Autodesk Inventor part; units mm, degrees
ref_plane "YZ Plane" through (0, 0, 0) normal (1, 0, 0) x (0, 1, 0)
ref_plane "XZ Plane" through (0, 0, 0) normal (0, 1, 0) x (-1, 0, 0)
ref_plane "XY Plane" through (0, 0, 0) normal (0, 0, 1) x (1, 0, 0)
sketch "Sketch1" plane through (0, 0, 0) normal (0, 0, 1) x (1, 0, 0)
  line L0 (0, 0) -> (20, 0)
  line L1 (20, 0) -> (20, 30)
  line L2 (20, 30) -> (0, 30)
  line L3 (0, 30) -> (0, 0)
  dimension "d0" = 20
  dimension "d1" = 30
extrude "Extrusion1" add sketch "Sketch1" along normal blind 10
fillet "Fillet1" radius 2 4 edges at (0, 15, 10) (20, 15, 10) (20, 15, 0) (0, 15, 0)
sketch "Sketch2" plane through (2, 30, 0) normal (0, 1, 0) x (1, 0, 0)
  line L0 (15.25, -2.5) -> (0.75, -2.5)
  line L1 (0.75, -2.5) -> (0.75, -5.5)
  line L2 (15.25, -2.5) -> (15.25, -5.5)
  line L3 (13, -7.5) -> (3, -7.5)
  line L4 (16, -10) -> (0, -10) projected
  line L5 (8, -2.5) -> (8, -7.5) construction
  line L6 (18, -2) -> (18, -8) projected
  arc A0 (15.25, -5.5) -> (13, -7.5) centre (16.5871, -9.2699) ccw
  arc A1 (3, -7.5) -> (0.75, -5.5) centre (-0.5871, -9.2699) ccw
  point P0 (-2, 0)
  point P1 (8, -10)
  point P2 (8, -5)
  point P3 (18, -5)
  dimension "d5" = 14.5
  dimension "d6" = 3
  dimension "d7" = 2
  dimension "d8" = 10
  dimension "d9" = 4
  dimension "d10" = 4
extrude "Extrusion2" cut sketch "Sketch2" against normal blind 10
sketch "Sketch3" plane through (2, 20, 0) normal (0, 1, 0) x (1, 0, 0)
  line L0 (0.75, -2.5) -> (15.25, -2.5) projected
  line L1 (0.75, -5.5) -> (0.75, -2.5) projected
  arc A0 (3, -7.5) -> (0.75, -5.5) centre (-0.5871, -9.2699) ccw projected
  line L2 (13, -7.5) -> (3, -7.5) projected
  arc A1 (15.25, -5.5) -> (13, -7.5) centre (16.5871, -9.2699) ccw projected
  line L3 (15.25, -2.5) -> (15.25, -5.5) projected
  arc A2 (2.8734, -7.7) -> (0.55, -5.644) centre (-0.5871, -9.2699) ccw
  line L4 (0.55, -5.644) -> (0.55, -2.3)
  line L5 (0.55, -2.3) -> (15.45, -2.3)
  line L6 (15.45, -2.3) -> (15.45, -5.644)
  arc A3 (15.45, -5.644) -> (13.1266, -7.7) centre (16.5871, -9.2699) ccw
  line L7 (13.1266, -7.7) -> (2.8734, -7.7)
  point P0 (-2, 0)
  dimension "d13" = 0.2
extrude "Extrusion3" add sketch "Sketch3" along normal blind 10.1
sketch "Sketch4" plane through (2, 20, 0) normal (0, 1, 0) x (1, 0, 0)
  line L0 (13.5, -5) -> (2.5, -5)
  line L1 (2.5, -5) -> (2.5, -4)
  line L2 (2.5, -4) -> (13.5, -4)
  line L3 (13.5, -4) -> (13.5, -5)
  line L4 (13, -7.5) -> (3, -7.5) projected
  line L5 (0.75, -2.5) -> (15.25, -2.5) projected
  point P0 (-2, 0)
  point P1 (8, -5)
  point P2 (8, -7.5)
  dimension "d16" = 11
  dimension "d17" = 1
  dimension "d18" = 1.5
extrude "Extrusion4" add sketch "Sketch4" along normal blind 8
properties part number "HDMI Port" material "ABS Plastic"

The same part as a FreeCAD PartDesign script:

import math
import FreeCAD as App
import Part
import Sketcher


def edges_at(feature, points):
    """Names of the edges that pass closest to the given points."""
    edges = feature.Shape.Edges
    near = lambda p: min(range(len(edges)), key=lambda i: edges[i].distToShape(Part.Vertex(*p))[0])
    return sorted({f"Edge{near(p) + 1}" for p in points})


def add_polygon(sketch, points):
    """Adds a closed chain of lines whose ends are joined by coincident constraints."""
    first, n = sketch.GeometryCount, len(points)
    for a, b in zip(points, points[1:] + points[:1]):
        sketch.addGeometry(Part.LineSegment(App.Vector(*a, 0), App.Vector(*b, 0)), False)
    for i in range(n):
        sketch.addConstraint(Sketcher.Constraint("Coincident", first + i, 2, first + (i + 1) % n, 1))

doc = App.newDocument("Part")
body = doc.addObject("PartDesign::Body", "Body")

# Sketch on XY plane
sketch1 = body.newObject("Sketcher::SketchObject", "Sketch")
sketch1.AttachmentSupport = (doc.getObject("XY_Plane"), [""])
sketch1.MapMode = "FlatFace"
add_polygon(sketch1, [(0, 30), (0, 0), (20, 0), (20, 30)])  # lines 0-3
sketch1.addConstraint([
    Sketcher.Constraint("Vertical", 0),
    Sketcher.Constraint("Horizontal", 1),
    Sketcher.Constraint("Vertical", 2),
    Sketcher.Constraint("Horizontal", 3),
    Sketcher.Constraint("Coincident", 0, 2, -1, 1),
    Sketcher.Constraint("DistanceX", 1, 1, 1, 2, 20.0),
    Sketcher.Constraint("DistanceY", 0, 2, 0, 1, 30.0),
])
pad1 = body.newObject("PartDesign::Pad", "Pad")
pad1.Profile = sketch1
pad1.Length = 10
doc.recompute()

fillet = body.newObject("PartDesign::Fillet", "Fillet")
fillet.Base = (pad1, edges_at(pad1, [
    (0, 15, 10),
    (20, 15, 10),
    (20, 15, 0),
    (0, 15, 0),
]))
fillet.Radius = 2

# Sketch on XZ plane
sketch2 = body.newObject("Sketcher::SketchObject", "Sketch001")
sketch2.AttachmentSupport = (doc.getObject("XZ_Plane"), [""])
sketch2.MapMode = "FlatFace"
sketch2.AttachmentOffset = App.Placement(App.Vector(0, 0, -30), App.Rotation())
sketch2.addGeometry([
    Part.LineSegment(App.Vector(17.2, 5.5, 0), App.Vector(17.2, 2.5, 0)),  # 0
    Part.LineSegment(App.Vector(17.2, 2.5, 0), App.Vector(2.8, 2.5, 0)),  # 1
    Part.LineSegment(App.Vector(2.8, 2.5, 0), App.Vector(2.8, 5.5, 0)),  # 2
    Part.ArcOfCircle(Part.Circle(App.Vector(1.4, 9.3, 0), App.Vector(0, 0, 1), 4), math.radians(-70), math.radians(-26)),  # 3
    Part.LineSegment(App.Vector(5, 7.5, 0), App.Vector(15, 7.5, 0)),  # 4
    Part.ArcOfCircle(Part.Circle(App.Vector(18.6, 9.3, 0), App.Vector(0, 0, 1), 4), math.radians(-154), math.radians(-110)),  # 5
], False)
sketch2.addConstraint([
    Sketcher.Constraint("Coincident", 0, 2, 1, 1),
    Sketcher.Constraint("Coincident", 1, 2, 2, 1),
    Sketcher.Constraint("Coincident", 2, 2, 3, 1),
    Sketcher.Constraint("Coincident", 3, 2, 4, 1),
    Sketcher.Constraint("Coincident", 4, 2, 5, 1),
    Sketcher.Constraint("Coincident", 5, 2, 0, 1),
    Sketcher.Constraint("Vertical", 0),
    Sketcher.Constraint("Horizontal", 1),
    Sketcher.Constraint("Vertical", 2),
    Sketcher.Constraint("Horizontal", 4),
    Sketcher.Constraint("Equal", 3, 5),
    Sketcher.Constraint("Horizontal", 3, 3, 5, 3),
    Sketcher.Constraint("Horizontal", 2, 2, 5, 2),
    Sketcher.Constraint("Radius", 3, 4.0),
    Sketcher.Constraint("DistanceX", 4, 1, 4, 2, 10.0),
    Sketcher.Constraint("DistanceY", 0, 2, 0, 1, 3.0),
    Sketcher.Constraint("DistanceX", 1, 2, 1, 1, 14.5),
    Sketcher.Constraint("DistanceY", 2, 2, 3, 2, 2.0),
    Sketcher.Constraint("DistanceX", -1, 1, 3, 2, 5.0),
    Sketcher.Constraint("DistanceY", -1, 1, 0, 2, 2.5),
])
pocket1 = body.newObject("PartDesign::Pocket", "Pocket")
pocket1.Profile = sketch2
pocket1.Length = 10
pocket1.Reversed = True

# Sketch on XZ plane
sketch3 = body.newObject("Sketcher::SketchObject", "Sketch002")
sketch3.AttachmentSupport = (doc.getObject("XZ_Plane"), [""])
sketch3.MapMode = "FlatFace"
sketch3.AttachmentOffset = App.Placement(App.Vector(0, 0, -20), App.Rotation())
sketch3.addGeometry([
    Part.ArcOfCircle(Part.Circle(App.Vector(1.4, 9.3, 0), App.Vector(0, 0, 1), 3.8), math.radians(-73), math.radians(-24)),  # 0
    Part.LineSegment(App.Vector(4.9, 7.7, 0), App.Vector(15.1, 7.7, 0)),  # 1
    Part.ArcOfCircle(Part.Circle(App.Vector(18.6, 9.3, 0), App.Vector(0, 0, 1), 3.8), math.radians(-156), math.radians(-107)),  # 2
    Part.LineSegment(App.Vector(17.4, 5.6, 0), App.Vector(17.4, 2.3, 0)),  # 3
    Part.LineSegment(App.Vector(17.4, 2.3, 0), App.Vector(2.5, 2.3, 0)),  # 4
    Part.LineSegment(App.Vector(2.5, 2.3, 0), App.Vector(2.5, 5.6, 0)),  # 5
    Part.LineSegment(App.Vector(2.8, 5.5, 0), App.Vector(2.8, 2.5, 0)),  # 6
    Part.LineSegment(App.Vector(2.8, 2.5, 0), App.Vector(17.2, 2.5, 0)),  # 7
    Part.LineSegment(App.Vector(17.2, 2.5, 0), App.Vector(17.2, 5.5, 0)),  # 8
    Part.ArcOfCircle(Part.Circle(App.Vector(18.6, 9.3, 0), App.Vector(0, 0, 1), 4), math.radians(-154), math.radians(-110)),  # 9
    Part.LineSegment(App.Vector(15, 7.5, 0), App.Vector(5, 7.5, 0)),  # 10
    Part.ArcOfCircle(Part.Circle(App.Vector(1.4, 9.3, 0), App.Vector(0, 0, 1), 4), math.radians(-70), math.radians(-26)),  # 11
], False)
sketch3.addConstraint([
    Sketcher.Constraint("Coincident", 0, 2, 1, 1),
    Sketcher.Constraint("Coincident", 1, 2, 2, 1),
    Sketcher.Constraint("Coincident", 2, 2, 3, 1),
    Sketcher.Constraint("Coincident", 3, 2, 4, 1),
    Sketcher.Constraint("Coincident", 4, 2, 5, 1),
    Sketcher.Constraint("Coincident", 5, 2, 0, 1),
    Sketcher.Constraint("Coincident", 6, 2, 7, 1),
    Sketcher.Constraint("Coincident", 7, 2, 8, 1),
    Sketcher.Constraint("Coincident", 8, 2, 9, 2),
    Sketcher.Constraint("Coincident", 9, 1, 10, 1),
    Sketcher.Constraint("Coincident", 10, 2, 11, 2),
    Sketcher.Constraint("Coincident", 11, 1, 6, 1),
    Sketcher.Constraint("Horizontal", 1),
    Sketcher.Constraint("Vertical", 3),
    Sketcher.Constraint("Horizontal", 4),
    Sketcher.Constraint("Vertical", 5),
    Sketcher.Constraint("Vertical", 6),
    Sketcher.Constraint("Horizontal", 7),
    Sketcher.Constraint("Vertical", 8),
    Sketcher.Constraint("Horizontal", 10),
    Sketcher.Constraint("Coincident", 9, 3, 2, 3),
    Sketcher.Constraint("Coincident", 11, 3, 0, 3),
    Sketcher.Constraint("Equal", 0, 2),
    Sketcher.Constraint("Equal", 9, 11),
    Sketcher.Constraint("Horizontal", 0, 3, 2, 3),
    Sketcher.Constraint("Horizontal", 2, 2, 5, 2),
    Sketcher.Constraint("Horizontal", 8, 2, 11, 1),
    Sketcher.Constraint("Radius", 9, 4.0),
    Sketcher.Constraint("Radius", 0, 3.8),
    Sketcher.Constraint("DistanceX", 4, 2, 6, 2, 0.2),
    Sketcher.Constraint("DistanceY", 4, 2, 6, 2, 0.2),
    Sketcher.Constraint("DistanceY", 9, 1, 1, 2, 0.2),
    Sketcher.Constraint("DistanceX", 10, 2, 10, 1, 10.0),
    Sketcher.Constraint("DistanceY", 6, 2, 6, 1, 3.0),
    Sketcher.Constraint("DistanceX", 4, 2, 4, 1, 14.9),
    Sketcher.Constraint("DistanceX", -1, 1, 9, 1, 15.0),
    Sketcher.Constraint("DistanceY", 8, 2, 9, 1, 2.0),
    Sketcher.Constraint("DistanceY", -1, 1, 0, 2, 7.7),
])
pad2 = body.newObject("PartDesign::Pad", "Pad001")
pad2.Profile = sketch3
pad2.Length = 10.1
pad2.Reversed = True

# Sketch on XZ plane
sketch4 = body.newObject("Sketcher::SketchObject", "Sketch003")
sketch4.AttachmentSupport = (doc.getObject("XZ_Plane"), [""])
sketch4.MapMode = "FlatFace"
sketch4.AttachmentOffset = App.Placement(App.Vector(0, 0, -20), App.Rotation())
add_polygon(sketch4, [(4.5, 5), (15.5, 5), (15.5, 4), (4.5, 4)])  # lines 0-3
sketch4.addConstraint([
    Sketcher.Constraint("Horizontal", 0),
    Sketcher.Constraint("Vertical", 1),
    Sketcher.Constraint("Horizontal", 2),
    Sketcher.Constraint("Vertical", 3),
    Sketcher.Constraint("DistanceX", 0, 1, 0, 2, 11.0),
    Sketcher.Constraint("DistanceY", 1, 2, 1, 1, 1.0),
    Sketcher.Constraint("DistanceY", -1, 1, 0, 2, 5.0),
    Sketcher.Constraint("DistanceX", -1, 1, 0, 2, 15.5),
])
pad3 = body.newObject("PartDesign::Pad", "Pad002")
pad3.Profile = sketch4
pad3.Length = 8
pad3.Reversed = True

doc.recompute()
